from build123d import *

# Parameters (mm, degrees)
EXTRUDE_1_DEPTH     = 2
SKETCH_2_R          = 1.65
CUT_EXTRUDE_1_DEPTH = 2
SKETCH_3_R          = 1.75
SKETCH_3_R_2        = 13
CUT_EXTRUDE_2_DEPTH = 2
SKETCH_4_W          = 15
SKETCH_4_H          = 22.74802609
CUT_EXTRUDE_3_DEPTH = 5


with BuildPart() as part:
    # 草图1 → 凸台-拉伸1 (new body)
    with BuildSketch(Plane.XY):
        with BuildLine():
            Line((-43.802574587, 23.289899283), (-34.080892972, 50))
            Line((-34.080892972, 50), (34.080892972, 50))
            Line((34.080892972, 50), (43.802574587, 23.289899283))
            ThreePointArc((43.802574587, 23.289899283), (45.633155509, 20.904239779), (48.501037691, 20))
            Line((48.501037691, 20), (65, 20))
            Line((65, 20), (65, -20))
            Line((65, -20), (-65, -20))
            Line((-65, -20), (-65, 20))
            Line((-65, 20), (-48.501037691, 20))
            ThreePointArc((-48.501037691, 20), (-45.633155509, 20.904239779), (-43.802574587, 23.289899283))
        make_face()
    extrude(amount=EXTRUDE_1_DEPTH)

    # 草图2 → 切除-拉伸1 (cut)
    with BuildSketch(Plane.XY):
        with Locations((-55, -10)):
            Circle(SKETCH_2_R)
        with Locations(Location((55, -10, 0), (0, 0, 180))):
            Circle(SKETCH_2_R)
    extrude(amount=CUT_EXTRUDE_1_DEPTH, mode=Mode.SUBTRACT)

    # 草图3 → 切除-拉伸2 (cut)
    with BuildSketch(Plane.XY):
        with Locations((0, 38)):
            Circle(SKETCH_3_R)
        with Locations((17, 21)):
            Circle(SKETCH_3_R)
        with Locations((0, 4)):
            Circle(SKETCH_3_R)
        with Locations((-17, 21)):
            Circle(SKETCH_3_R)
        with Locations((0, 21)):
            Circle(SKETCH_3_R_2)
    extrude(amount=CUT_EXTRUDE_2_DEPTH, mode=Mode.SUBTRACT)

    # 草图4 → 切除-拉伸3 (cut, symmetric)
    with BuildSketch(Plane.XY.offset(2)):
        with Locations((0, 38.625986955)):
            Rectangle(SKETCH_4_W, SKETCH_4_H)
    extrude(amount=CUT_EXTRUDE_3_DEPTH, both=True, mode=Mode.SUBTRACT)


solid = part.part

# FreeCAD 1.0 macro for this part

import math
import FreeCAD as App
import Part
import Sketcher
from FreeCAD import Vector
Q = App.Units.Quantity

doc = App.newDocument("Part")
params = doc.addObject("Spreadsheet::Sheet", "Params")
for row, (alias, value) in enumerate([
    ("sketch1_radius", "5 mm"),
    ("sketch1_width", "130 mm"),
    ("sketch1_height", "40 mm"),
    ("pad1_length", "2 mm"),
    ("sketch2_diameter", "3.3 mm"),
    ("pocket1_length", "2 mm"),
    ("sketch3_diameter", "26 mm"),
    ("sketch3_diameter2", "3.5 mm"),
    ("pocket2_length", "2 mm"),
    ("sketch4_width", "15 mm"),
    ("pocket3_length", "10 mm"),
], start=1):
    params.set(f"A{row}", alias)
    params.set(f"B{row}", "=" + value)
    params.setAlias(f"B{row}", alias)

body = doc.addObject("PartDesign::Body", "Body")

# Sketch on XY plane
sketch1 = body.newObject("Sketcher::SketchObject", "Sketch")
sketch1.AttachmentSupport = (doc.getObject("XY_Plane"), [""])
sketch1.MapMode = "FlatFace"
sketch1.addGeometry(Part.LineSegment(Vector(-34.080893, 50, 0), Vector(-43.802575, 23.289899, 0)), False)
sketch1.addGeometry(Part.ArcOfCircle(Part.Circle(Vector(-48.501038, 25, 0), Vector(0, 0, 1), 5), math.radians(-90), math.radians(-20)), False)
sketch1.addGeometry(Part.LineSegment(Vector(-48.501038, 20, 0), Vector(-65, 20, 0)), False)
sketch1.addGeometry(Part.LineSegment(Vector(-65, 20, 0), Vector(-65, -20, 0)), False)
sketch1.addGeometry(Part.LineSegment(Vector(-65, -20, 0), Vector(65, -20, 0)), False)
sketch1.addGeometry(Part.LineSegment(Vector(65, -20, 0), Vector(65, 20, 0)), False)
sketch1.addGeometry(Part.LineSegment(Vector(65, 20, 0), Vector(48.501038, 20, 0)), False)
sketch1.addGeometry(Part.ArcOfCircle(Part.Circle(Vector(48.501038, 25, 0), Vector(0, 0, 1), 5), math.radians(-160), math.radians(-90)), False)
sketch1.addGeometry(Part.LineSegment(Vector(43.802575, 23.289899, 0), Vector(34.080893, 50, 0)), False)
sketch1.addGeometry(Part.LineSegment(Vector(34.080893, 50, 0), Vector(-34.080893, 50, 0)), False)
sketch1.addConstraint(Sketcher.Constraint("Tangent", 0, 2, 1, 2))
sketch1.addConstraint(Sketcher.Constraint("Tangent", 1, 1, 2, 1))
sketch1.addConstraint(Sketcher.Constraint("Coincident", 2, 2, 3, 1))
sketch1.addConstraint(Sketcher.Constraint("Coincident", 3, 2, 4, 1))
sketch1.addConstraint(Sketcher.Constraint("Coincident", 4, 2, 5, 1))
sketch1.addConstraint(Sketcher.Constraint("Coincident", 5, 2, 6, 1))
sketch1.addConstraint(Sketcher.Constraint("Tangent", 6, 2, 7, 2))
sketch1.addConstraint(Sketcher.Constraint("Tangent", 7, 1, 8, 1))
sketch1.addConstraint(Sketcher.Constraint("Coincident", 8, 2, 9, 1))
sketch1.addConstraint(Sketcher.Constraint("Coincident", 9, 2, 0, 1))
sketch1.addConstraint(Sketcher.Constraint("Horizontal", 2))
sketch1.addConstraint(Sketcher.Constraint("Vertical", 3))
sketch1.addConstraint(Sketcher.Constraint("Horizontal", 4))
sketch1.addConstraint(Sketcher.Constraint("Vertical", 5))
sketch1.addConstraint(Sketcher.Constraint("Horizontal", 6))
sketch1.addConstraint(Sketcher.Constraint("Horizontal", 9))
sketch1.addConstraint(Sketcher.Constraint("Equal", 1, 7))
sketch1.addConstraint(Sketcher.Constraint("Symmetric", 2, 2, 4, 2, -1, 1))
sketch1.addConstraint(Sketcher.Constraint("Symmetric", 1, 3, 7, 3, -2))
sketch1.addConstraint(Sketcher.Constraint("Horizontal", 0, 2, 7, 1))
sketch1.addConstraint(Sketcher.Constraint("Radius", 1, 5.0))
sketch1.addConstraint(Sketcher.Constraint("DistanceX", 4, 1, 4, 2, 130.0))
sketch1.addConstraint(Sketcher.Constraint("DistanceY", 3, 2, 3, 1, 40.0))
sketch1.addConstraint(Sketcher.Constraint("Angle", 0, Q("-110 deg")))
sketch1.addConstraint(Sketcher.Constraint("DistanceY", -1, 1, 8, 2, 50.0))
sketch1.addConstraint(Sketcher.Constraint("DistanceX", 2, 2, 2, 1, 16.498962))
sketch1.setExpression("Constraints[20]", "Params.sketch1_radius")
sketch1.setExpression("Constraints[21]", "Params.sketch1_width")
sketch1.setExpression("Constraints[22]", "Params.sketch1_height")
pad1 = body.newObject("PartDesign::Pad", "Pad")
pad1.Profile = sketch1
pad1.setExpression("Length", "Params.pad1_length")

# Sketch on XY plane
sketch2 = body.newObject("Sketcher::SketchObject", "Sketch001")
sketch2.AttachmentSupport = (doc.getObject("XY_Plane"), [""])
sketch2.MapMode = "FlatFace"
sketch2.addGeometry(Part.Circle(Vector(-55, -10, 0), Vector(0, 0, 1), 1.65), False)
sketch2.addGeometry(Part.Circle(Vector(55, -10, 0), Vector(0, 0, 1), 1.65), False)
sketch2.addConstraint(Sketcher.Constraint("Equal", 0, 1))
sketch2.addConstraint(Sketcher.Constraint("Symmetric", 0, 3, 1, 3, -2))
sketch2.addConstraint(Sketcher.Constraint("Diameter", 0, 3.3))
sketch2.addConstraint(Sketcher.Constraint("DistanceX", 0, 3, -1, 1, 55.0))
sketch2.addConstraint(Sketcher.Constraint("DistanceY", 0, 3, -1, 1, 10.0))
sketch2.setExpression("Constraints[2]", "Params.sketch2_diameter")
pocket1 = body.newObject("PartDesign::Pocket", "Pocket")
pocket1.Profile = sketch2
pocket1.setExpression("Length", "Params.pocket1_length")
pocket1.Reversed = True

# Sketch on XY plane
sketch3 = body.newObject("Sketcher::SketchObject", "Sketch002")
sketch3.AttachmentSupport = (doc.getObject("XY_Plane"), [""])
sketch3.MapMode = "FlatFace"
sketch3.addGeometry(Part.Circle(Vector(0, 38, 0), Vector(0, 0, 1), 1.75), False)
sketch3.addGeometry(Part.Circle(Vector(17, 21, 0), Vector(0, 0, 1), 1.75), False)
sketch3.addGeometry(Part.Circle(Vector(0, 4, 0), Vector(0, 0, 1), 1.75), False)
sketch3.addGeometry(Part.Circle(Vector(-17, 21, 0), Vector(0, 0, 1), 1.75), False)
sketch3.addGeometry(Part.Circle(Vector(0, 21, 0), Vector(0, 0, 1), 13), False)
sketch3.addConstraint(Sketcher.Constraint("Equal", 0, 1))
sketch3.addConstraint(Sketcher.Constraint("Equal", 1, 2))
sketch3.addConstraint(Sketcher.Constraint("Equal", 2, 3))
sketch3.addConstraint(Sketcher.Constraint("Symmetric", 1, 3, 3, 3, -2))
sketch3.addConstraint(Sketcher.Constraint("PointOnObject", 0, 3, -2))
sketch3.addConstraint(Sketcher.Constraint("PointOnObject", 2, 3, -2))
sketch3.addConstraint(Sketcher.Constraint("PointOnObject", 4, 3, -2))
sketch3.addConstraint(Sketcher.Constraint("Horizontal", 3, 3, 4, 3))
sketch3.addConstraint(Sketcher.Constraint("Diameter", 4, 26.0))
sketch3.addConstraint(Sketcher.Constraint("Diameter", 0, 3.5))
sketch3.addConstraint(Sketcher.Constraint("DistanceY", -1, 1, 0, 3, 38.0))
sketch3.addConstraint(Sketcher.Constraint("DistanceX", -1, 1, 1, 3, 17.0))
sketch3.addConstraint(Sketcher.Constraint("DistanceY", -1, 1, 1, 3, 21.0))
sketch3.addConstraint(Sketcher.Constraint("DistanceY", -1, 1, 2, 3, 4.0))
sketch3.setExpression("Constraints[8]", "Params.sketch3_diameter")
sketch3.setExpression("Constraints[9]", "Params.sketch3_diameter2")
pocket2 = body.newObject("PartDesign::Pocket", "Pocket001")
pocket2.Profile = sketch3
pocket2.setExpression("Length", "Params.pocket2_length")
pocket2.Reversed = True

# Sketch on XY plane
sketch4 = body.newObject("Sketcher::SketchObject", "Sketch003")
sketch4.AttachmentSupport = (doc.getObject("XY_Plane"), [""])
sketch4.MapMode = "FlatFace"
sketch4.AttachmentOffset = App.Placement(Vector(0, 0, 2), App.Rotation())
sketch4.addGeometry(Part.LineSegment(Vector(-7.5, 50, 0), Vector(-7.5, 27.251974, 0)), False)
sketch4.addGeometry(Part.LineSegment(Vector(-7.5, 27.251974, 0), Vector(7.5, 27.251974, 0)), False)
sketch4.addGeometry(Part.LineSegment(Vector(7.5, 27.251974, 0), Vector(7.5, 50, 0)), False)
sketch4.addGeometry(Part.LineSegment(Vector(7.5, 50, 0), Vector(-7.5, 50, 0)), False)
sketch4.addConstraint(Sketcher.Constraint("Coincident", 0, 2, 1, 1))
sketch4.addConstraint(Sketcher.Constraint("Coincident", 1, 2, 2, 1))
sketch4.addConstraint(Sketcher.Constraint("Coincident", 2, 2, 3, 1))
sketch4.addConstraint(Sketcher.Constraint("Coincident", 3, 2, 0, 1))
sketch4.addConstraint(Sketcher.Constraint("Vertical", 0))
sketch4.addConstraint(Sketcher.Constraint("Horizontal", 1))
sketch4.addConstraint(Sketcher.Constraint("Vertical", 2))
sketch4.addConstraint(Sketcher.Constraint("Horizontal", 3))
sketch4.addConstraint(Sketcher.Constraint("DistanceX", 1, 1, 1, 2, 15.0))
sketch4.addConstraint(Sketcher.Constraint("DistanceY", -1, 1, 2, 2, 50.0))
sketch4.addConstraint(Sketcher.Constraint("DistanceX", 0, 2, -1, 1, 7.5))
sketch4.addConstraint(Sketcher.Constraint("DistanceY", 0, 2, 0, 1, 22.748026))
sketch4.setExpression("Constraints[8]", "Params.sketch4_width")
pocket3 = body.newObject("PartDesign::Pocket", "Pocket002")
pocket3.Profile = sketch4
pocket3.setExpression("Length", "Params.pocket3_length")
pocket3.Midplane = True

doc.recompute()
